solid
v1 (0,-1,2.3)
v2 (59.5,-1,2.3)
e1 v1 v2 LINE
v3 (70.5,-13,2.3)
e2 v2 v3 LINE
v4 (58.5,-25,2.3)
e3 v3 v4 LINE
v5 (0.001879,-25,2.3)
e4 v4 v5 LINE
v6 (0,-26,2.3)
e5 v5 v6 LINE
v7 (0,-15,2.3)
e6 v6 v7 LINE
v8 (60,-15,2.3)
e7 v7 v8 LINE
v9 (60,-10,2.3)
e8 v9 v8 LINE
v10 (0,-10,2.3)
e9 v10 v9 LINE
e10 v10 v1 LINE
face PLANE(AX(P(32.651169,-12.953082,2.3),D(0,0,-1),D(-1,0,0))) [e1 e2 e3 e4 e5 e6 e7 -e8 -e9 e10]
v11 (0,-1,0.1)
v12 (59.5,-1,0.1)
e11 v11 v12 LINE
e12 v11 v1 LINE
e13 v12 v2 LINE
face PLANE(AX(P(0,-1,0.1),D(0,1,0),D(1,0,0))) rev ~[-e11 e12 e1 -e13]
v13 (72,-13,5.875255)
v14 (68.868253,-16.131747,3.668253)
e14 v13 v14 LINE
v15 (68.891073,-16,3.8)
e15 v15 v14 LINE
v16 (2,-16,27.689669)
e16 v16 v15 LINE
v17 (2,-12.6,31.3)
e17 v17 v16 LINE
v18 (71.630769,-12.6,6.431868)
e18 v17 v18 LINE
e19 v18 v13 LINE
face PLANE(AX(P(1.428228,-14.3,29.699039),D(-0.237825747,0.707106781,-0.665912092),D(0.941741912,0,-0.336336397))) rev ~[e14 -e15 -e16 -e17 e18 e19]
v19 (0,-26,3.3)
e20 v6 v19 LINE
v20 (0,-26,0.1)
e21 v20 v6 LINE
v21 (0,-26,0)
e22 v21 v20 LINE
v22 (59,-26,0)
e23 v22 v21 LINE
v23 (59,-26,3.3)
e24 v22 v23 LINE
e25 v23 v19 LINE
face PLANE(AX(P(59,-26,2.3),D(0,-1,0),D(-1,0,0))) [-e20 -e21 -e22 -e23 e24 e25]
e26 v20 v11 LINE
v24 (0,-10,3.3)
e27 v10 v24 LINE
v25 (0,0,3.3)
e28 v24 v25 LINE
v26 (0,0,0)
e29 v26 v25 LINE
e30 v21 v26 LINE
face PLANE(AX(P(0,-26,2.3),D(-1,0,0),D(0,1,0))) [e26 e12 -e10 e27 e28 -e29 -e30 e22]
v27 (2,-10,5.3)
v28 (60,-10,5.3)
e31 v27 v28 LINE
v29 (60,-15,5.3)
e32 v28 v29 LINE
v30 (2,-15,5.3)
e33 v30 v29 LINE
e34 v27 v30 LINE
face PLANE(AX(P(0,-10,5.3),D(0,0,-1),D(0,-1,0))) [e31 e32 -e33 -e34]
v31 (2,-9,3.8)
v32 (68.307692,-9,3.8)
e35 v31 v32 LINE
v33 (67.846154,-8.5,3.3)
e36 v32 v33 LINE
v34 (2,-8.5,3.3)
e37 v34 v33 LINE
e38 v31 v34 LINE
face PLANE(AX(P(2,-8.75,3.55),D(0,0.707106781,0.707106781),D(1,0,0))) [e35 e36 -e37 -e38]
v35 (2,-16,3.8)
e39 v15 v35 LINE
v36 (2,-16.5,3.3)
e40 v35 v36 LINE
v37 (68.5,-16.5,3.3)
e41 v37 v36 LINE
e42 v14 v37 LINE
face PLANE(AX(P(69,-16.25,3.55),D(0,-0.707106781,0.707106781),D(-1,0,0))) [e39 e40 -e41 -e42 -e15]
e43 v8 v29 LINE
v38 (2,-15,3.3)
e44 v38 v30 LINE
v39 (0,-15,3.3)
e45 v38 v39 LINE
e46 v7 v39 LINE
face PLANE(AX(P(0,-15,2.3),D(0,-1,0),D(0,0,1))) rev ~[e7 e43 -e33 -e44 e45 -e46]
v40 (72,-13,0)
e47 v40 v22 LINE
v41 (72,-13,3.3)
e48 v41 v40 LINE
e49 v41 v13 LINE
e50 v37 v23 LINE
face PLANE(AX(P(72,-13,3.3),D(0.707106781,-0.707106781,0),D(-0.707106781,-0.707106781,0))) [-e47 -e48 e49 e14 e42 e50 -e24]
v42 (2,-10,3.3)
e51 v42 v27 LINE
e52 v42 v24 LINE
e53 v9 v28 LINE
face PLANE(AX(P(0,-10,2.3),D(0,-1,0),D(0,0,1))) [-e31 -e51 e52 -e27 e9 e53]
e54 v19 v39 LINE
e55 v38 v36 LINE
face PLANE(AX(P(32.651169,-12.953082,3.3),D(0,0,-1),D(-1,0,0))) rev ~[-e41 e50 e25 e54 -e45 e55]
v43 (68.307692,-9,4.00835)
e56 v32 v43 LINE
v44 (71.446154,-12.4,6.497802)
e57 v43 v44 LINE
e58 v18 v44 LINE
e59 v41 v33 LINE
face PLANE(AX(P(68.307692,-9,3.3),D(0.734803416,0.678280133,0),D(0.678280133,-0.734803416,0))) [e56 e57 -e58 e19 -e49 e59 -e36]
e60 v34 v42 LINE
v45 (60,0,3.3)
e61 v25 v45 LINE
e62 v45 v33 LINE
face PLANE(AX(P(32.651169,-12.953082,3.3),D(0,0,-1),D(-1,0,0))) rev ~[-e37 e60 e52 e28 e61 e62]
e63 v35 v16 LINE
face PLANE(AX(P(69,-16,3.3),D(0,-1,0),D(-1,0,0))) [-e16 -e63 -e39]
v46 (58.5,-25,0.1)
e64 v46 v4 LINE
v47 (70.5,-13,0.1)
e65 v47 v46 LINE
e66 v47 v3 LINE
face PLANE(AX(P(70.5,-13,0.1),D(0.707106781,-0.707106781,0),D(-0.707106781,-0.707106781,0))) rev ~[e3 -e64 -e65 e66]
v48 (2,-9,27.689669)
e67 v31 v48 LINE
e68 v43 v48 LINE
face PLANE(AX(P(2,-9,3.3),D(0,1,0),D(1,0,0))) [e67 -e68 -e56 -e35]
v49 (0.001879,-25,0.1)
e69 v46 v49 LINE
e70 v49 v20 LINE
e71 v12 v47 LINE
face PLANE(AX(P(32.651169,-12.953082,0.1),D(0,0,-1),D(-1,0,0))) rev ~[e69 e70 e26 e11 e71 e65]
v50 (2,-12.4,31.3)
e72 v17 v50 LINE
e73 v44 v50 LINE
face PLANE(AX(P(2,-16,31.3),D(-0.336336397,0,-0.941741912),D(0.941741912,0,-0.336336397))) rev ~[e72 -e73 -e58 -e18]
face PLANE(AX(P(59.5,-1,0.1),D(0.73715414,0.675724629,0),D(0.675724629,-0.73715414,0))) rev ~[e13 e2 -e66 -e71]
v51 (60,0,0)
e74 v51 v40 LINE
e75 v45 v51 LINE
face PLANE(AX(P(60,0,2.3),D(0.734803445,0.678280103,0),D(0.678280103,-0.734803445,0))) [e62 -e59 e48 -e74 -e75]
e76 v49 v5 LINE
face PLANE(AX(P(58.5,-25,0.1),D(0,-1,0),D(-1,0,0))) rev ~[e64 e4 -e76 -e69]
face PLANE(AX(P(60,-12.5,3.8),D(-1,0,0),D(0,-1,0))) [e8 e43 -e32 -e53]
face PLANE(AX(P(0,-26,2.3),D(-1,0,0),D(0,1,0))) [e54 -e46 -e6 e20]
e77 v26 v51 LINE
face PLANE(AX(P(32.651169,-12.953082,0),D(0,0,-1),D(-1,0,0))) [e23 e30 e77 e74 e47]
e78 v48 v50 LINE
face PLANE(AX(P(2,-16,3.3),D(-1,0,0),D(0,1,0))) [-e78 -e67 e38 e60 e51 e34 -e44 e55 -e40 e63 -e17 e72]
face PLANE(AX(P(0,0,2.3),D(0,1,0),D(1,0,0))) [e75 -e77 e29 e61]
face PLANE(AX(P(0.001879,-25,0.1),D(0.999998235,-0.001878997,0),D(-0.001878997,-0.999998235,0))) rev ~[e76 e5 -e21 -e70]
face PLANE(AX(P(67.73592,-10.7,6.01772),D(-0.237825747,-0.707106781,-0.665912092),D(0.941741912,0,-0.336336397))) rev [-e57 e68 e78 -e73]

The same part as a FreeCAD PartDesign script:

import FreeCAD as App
import Part
import Sketcher
from FreeCAD import Vector
Q = App.Units.Quantity


def edges_at(feature, points):
    """Names of the edges that pass closest to the given points."""
    edges = feature.Shape.Edges
    near = lambda p: min(range(len(edges)), key=lambda i: edges[i].distToShape(Part.Vertex(*p))[0])
    return sorted({f"Edge{near(p) + 1}" for p in points})


def add_polygon(sketch, points):
    """Adds a closed chain of lines whose ends are joined by coincident constraints."""
    first, n = sketch.GeometryCount, len(points)
    for a, b in zip(points, points[1:] + points[:1]):
        sketch.addGeometry(Part.LineSegment(App.Vector(*a, 0), App.Vector(*b, 0)), False)
    for i in range(n):
        sketch.addConstraint(Sketcher.Constraint("Coincident", first + i, 2, first + (i + 1) % n, 1))

doc = App.newDocument("Part")
body = doc.addObject("PartDesign::Body", "Body")

sketch1 = body.newObject("Sketcher::SketchObject", "Sketch")
sketch1.AttachmentSupport = (doc.getObject("XY_Plane"), [""])
sketch1.MapMode = "FlatFace"
add_polygon(sketch1, [(60, 0), (0, 0), (0, -26), (59, -26), (72, -13)])
sketch1.addConstraint([
    Sketcher.Constraint("Horizontal", 0),
    Sketcher.Constraint("Vertical", 1),
    Sketcher.Constraint("Horizontal", 2),
    Sketcher.Constraint("Coincident", 0, 2, -1, 1),
    Sketcher.Constraint("DistanceX", 0, 2, 0, 1, 60.0),
    Sketcher.Constraint("DistanceX", 2, 1, 2, 2, 59.0),
    Sketcher.Constraint("DistanceY", 1, 2, 1, 1, 26.0),
    Sketcher.Constraint("Angle", 3, Q("45 deg")),
    Sketcher.Constraint("DistanceX", -1, 1, 3, 2, 72.0),
])
pad1 = body.newObject("PartDesign::Pad", "Pad")
pad1.Profile = sketch1
pad1.Length = 0.1

sketch2 = body.newObject("Sketcher::SketchObject", "Sketch001")
sketch2.AttachmentSupport = (doc.getObject("XY_Plane"), [""])
sketch2.MapMode = "FlatFace"
sketch2.AttachmentOffset = App.Placement(Vector(0, 0, 0.1), App.Rotation())
add_polygon(sketch2, [(0, -1), (59.5, -1), (70.5, -13), (58.5, -25), (0, -25), (0, -26), (59, -26), (72, -13), (60, 0), (0, 0)])
sketch2.addConstraint([
    Sketcher.Constraint("Horizontal", 0),
    Sketcher.Constraint("Horizontal", 3),
    Sketcher.Constraint("Horizontal", 5),
    Sketcher.Constraint("Horizontal", 8),
    Sketcher.Constraint("Vertical", 9),
    Sketcher.Constraint("Coincident", 8, 2, -1, 1),
    Sketcher.Constraint("PointOnObject", 4, 2, -2),
    Sketcher.Constraint("Parallel", 2, 6),
    Sketcher.Constraint("Horizontal", 1, 2, 6, 2),
    Sketcher.Constraint("DistanceX", 5, 1, 5, 2, 59.0),
    Sketcher.Constraint("DistanceX", 8, 2, 8, 1, 60.0),
    Sketcher.Constraint("DistanceY", 9, 2, 9, 1, 1.0),
    Sketcher.Constraint("Angle", 2, Q("-135 deg")),
    Sketcher.Constraint("Distance", 4, 1.000002),
    Sketcher.Constraint("DistanceX", 0, 1, 0, 2, 59.5),
    Sketcher.Constraint("DistanceY", 1, 2, -1, 1, 13.0),
    Sketcher.Constraint("DistanceY", 2, 2, -1, 1, 25.0),
    Sketcher.Constraint("DistanceX", 0, 2, 1, 2, 11.0),
    Sketcher.Constraint("DistanceX", 3, 2, 3, 1, 58.498121),
])
pad2 = body.newObject("PartDesign::Pad", "Pad001")
pad2.Profile = sketch2
pad2.Length = 2.2

sketch3 = body.newObject("Sketcher::SketchObject", "Sketch002")
sketch3.AttachmentSupport = (doc.getObject("XY_Plane"), [""])
sketch3.MapMode = "FlatFace"
sketch3.AttachmentOffset = App.Placement(Vector(0, 0, 2.3), App.Rotation())
add_polygon(sketch3, [(60, 0), (0, 0), (0, -26), (59, -26), (72, -13)])
sketch3.addConstraint([
    Sketcher.Constraint("Horizontal", 0),
    Sketcher.Constraint("Vertical", 1),
    Sketcher.Constraint("Horizontal", 2),
    Sketcher.Constraint("Coincident", 0, 2, -1, 1),
    Sketcher.Constraint("DistanceX", 0, 2, 0, 1, 60.0),
    Sketcher.Constraint("DistanceX", 2, 1, 2, 2, 59.0),
    Sketcher.Constraint("DistanceY", 1, 2, 1, 1, 26.0),
    Sketcher.Constraint("Angle", 3, Q("45 deg")),
    Sketcher.Constraint("DistanceX", -1, 1, 3, 2, 72.0),
])
pad3 = body.newObject("PartDesign::Pad", "Pad002")
pad3.Profile = sketch3
pad3.Length = 1

sketch4 = body.newObject("Sketcher::SketchObject", "Sketch003")
sketch4.AttachmentSupport = (doc.getObject("XY_Plane"), [""])
sketch4.MapMode = "FlatFace"
sketch4.AttachmentOffset = App.Placement(Vector(0, 0, 3.3), App.Rotation())
add_polygon(sketch4, [(68.3, -9), (2, -9), (2, -16), (69, -16), (72, -13)])
sketch4.addConstraint([
    Sketcher.Constraint("Horizontal", 0),
    Sketcher.Constraint("Vertical", 1),
    Sketcher.Constraint("Horizontal", 2),
    Sketcher.Constraint("DistanceX", 2, 1, 2, 2, 67.0),
    Sketcher.Constraint("DistanceY", 1, 2, 1, 1, 7.0),
    Sketcher.Constraint("Angle", 3, Q("45 deg")),
    Sketcher.Constraint("DistanceX", -1, 1, 0, 2, 2.0),
    Sketcher.Constraint("DistanceY", 0, 2, -1, 1, 9.0),
    Sketcher.Constraint("DistanceX", -1, 1, 3, 2, 72.0),
    Sketcher.Constraint("DistanceX", 0, 2, 0, 1, 66.307692),
])
pad4 = body.newObject("PartDesign::Pad", "Pad003")
pad4.Profile = sketch4
pad4.Length = 28

sketch5 = body.newObject("Sketcher::SketchObject", "Sketch004")
sketch5.AttachmentSupport = (doc.getObject("XZ_Plane"), [""])
sketch5.MapMode = "FlatFace"
sketch5.AttachmentOffset = App.Placement(Vector(0, 0, 16), App.Rotation())
add_polygon(sketch5, [(2, 31), (72, 6), (72, 31)])
sketch5.addConstraint([
    Sketcher.Constraint("Vertical", 1),
    Sketcher.Constraint("Horizontal", 2),
    Sketcher.Constraint("DistanceX", 2, 2, 2, 1, 70.0),
    Sketcher.Constraint("DistanceY", 1, 1, 1, 2, 25.0),
    Sketcher.Constraint("DistanceX", -1, 1, 0, 2, 72.0),
    Sketcher.Constraint("DistanceY", -1, 1, 0, 2, 6.3),
])
pocket1 = body.newObject("PartDesign::Pocket", "Pocket")
pocket1.Profile = sketch5
pocket1.Length = 8

sketch6 = body.newObject("Sketcher::SketchObject", "Sketch005")
sketch6.AttachmentSupport = (doc.getObject("YZ_Plane"), [""])
sketch6.MapMode = "FlatFace"
add_polygon(sketch6, [(-10, 5.3), (-10, 2.3), (-15, 2.3), (-15, 5.3)])
sketch6.addConstraint([
    Sketcher.Constraint("Vertical", 0),
    Sketcher.Constraint("Horizontal", 1),
    Sketcher.Constraint("Vertical", 2),
    Sketcher.Constraint("Horizontal", 3),
    Sketcher.Constraint("DistanceX", 1, 2, 1, 1, 5.0),
    Sketcher.Constraint("DistanceY", 0, 2, 0, 1, 3.0),
    Sketcher.Constraint("DistanceX", 0, 2, -1, 1, 10.0),
    Sketcher.Constraint("DistanceY", -1, 1, 0, 2, 2.3),
])
pocket2 = body.newObject("PartDesign::Pocket", "Pocket001")
pocket2.Profile = sketch6
pocket2.Length = 60
pocket2.Reversed = True
doc.recompute()

chamfer = body.newObject("PartDesign::Chamfer", "Chamfer")
chamfer.Base = (pocket2, edges_at(pocket2, [(35.154, -9, 19.459), (35.5, -16, 19.336)]))
chamfer.Size = 3.4
doc.recompute()

chamfer2 = body.newObject("PartDesign::Chamfer", "Chamfer001")
chamfer2.Base = (chamfer, edges_at(chamfer, [(35.5, -16, 3.3), (35.154, -9, 3.3)]))
chamfer2.Size = 0.5

doc.recompute()
